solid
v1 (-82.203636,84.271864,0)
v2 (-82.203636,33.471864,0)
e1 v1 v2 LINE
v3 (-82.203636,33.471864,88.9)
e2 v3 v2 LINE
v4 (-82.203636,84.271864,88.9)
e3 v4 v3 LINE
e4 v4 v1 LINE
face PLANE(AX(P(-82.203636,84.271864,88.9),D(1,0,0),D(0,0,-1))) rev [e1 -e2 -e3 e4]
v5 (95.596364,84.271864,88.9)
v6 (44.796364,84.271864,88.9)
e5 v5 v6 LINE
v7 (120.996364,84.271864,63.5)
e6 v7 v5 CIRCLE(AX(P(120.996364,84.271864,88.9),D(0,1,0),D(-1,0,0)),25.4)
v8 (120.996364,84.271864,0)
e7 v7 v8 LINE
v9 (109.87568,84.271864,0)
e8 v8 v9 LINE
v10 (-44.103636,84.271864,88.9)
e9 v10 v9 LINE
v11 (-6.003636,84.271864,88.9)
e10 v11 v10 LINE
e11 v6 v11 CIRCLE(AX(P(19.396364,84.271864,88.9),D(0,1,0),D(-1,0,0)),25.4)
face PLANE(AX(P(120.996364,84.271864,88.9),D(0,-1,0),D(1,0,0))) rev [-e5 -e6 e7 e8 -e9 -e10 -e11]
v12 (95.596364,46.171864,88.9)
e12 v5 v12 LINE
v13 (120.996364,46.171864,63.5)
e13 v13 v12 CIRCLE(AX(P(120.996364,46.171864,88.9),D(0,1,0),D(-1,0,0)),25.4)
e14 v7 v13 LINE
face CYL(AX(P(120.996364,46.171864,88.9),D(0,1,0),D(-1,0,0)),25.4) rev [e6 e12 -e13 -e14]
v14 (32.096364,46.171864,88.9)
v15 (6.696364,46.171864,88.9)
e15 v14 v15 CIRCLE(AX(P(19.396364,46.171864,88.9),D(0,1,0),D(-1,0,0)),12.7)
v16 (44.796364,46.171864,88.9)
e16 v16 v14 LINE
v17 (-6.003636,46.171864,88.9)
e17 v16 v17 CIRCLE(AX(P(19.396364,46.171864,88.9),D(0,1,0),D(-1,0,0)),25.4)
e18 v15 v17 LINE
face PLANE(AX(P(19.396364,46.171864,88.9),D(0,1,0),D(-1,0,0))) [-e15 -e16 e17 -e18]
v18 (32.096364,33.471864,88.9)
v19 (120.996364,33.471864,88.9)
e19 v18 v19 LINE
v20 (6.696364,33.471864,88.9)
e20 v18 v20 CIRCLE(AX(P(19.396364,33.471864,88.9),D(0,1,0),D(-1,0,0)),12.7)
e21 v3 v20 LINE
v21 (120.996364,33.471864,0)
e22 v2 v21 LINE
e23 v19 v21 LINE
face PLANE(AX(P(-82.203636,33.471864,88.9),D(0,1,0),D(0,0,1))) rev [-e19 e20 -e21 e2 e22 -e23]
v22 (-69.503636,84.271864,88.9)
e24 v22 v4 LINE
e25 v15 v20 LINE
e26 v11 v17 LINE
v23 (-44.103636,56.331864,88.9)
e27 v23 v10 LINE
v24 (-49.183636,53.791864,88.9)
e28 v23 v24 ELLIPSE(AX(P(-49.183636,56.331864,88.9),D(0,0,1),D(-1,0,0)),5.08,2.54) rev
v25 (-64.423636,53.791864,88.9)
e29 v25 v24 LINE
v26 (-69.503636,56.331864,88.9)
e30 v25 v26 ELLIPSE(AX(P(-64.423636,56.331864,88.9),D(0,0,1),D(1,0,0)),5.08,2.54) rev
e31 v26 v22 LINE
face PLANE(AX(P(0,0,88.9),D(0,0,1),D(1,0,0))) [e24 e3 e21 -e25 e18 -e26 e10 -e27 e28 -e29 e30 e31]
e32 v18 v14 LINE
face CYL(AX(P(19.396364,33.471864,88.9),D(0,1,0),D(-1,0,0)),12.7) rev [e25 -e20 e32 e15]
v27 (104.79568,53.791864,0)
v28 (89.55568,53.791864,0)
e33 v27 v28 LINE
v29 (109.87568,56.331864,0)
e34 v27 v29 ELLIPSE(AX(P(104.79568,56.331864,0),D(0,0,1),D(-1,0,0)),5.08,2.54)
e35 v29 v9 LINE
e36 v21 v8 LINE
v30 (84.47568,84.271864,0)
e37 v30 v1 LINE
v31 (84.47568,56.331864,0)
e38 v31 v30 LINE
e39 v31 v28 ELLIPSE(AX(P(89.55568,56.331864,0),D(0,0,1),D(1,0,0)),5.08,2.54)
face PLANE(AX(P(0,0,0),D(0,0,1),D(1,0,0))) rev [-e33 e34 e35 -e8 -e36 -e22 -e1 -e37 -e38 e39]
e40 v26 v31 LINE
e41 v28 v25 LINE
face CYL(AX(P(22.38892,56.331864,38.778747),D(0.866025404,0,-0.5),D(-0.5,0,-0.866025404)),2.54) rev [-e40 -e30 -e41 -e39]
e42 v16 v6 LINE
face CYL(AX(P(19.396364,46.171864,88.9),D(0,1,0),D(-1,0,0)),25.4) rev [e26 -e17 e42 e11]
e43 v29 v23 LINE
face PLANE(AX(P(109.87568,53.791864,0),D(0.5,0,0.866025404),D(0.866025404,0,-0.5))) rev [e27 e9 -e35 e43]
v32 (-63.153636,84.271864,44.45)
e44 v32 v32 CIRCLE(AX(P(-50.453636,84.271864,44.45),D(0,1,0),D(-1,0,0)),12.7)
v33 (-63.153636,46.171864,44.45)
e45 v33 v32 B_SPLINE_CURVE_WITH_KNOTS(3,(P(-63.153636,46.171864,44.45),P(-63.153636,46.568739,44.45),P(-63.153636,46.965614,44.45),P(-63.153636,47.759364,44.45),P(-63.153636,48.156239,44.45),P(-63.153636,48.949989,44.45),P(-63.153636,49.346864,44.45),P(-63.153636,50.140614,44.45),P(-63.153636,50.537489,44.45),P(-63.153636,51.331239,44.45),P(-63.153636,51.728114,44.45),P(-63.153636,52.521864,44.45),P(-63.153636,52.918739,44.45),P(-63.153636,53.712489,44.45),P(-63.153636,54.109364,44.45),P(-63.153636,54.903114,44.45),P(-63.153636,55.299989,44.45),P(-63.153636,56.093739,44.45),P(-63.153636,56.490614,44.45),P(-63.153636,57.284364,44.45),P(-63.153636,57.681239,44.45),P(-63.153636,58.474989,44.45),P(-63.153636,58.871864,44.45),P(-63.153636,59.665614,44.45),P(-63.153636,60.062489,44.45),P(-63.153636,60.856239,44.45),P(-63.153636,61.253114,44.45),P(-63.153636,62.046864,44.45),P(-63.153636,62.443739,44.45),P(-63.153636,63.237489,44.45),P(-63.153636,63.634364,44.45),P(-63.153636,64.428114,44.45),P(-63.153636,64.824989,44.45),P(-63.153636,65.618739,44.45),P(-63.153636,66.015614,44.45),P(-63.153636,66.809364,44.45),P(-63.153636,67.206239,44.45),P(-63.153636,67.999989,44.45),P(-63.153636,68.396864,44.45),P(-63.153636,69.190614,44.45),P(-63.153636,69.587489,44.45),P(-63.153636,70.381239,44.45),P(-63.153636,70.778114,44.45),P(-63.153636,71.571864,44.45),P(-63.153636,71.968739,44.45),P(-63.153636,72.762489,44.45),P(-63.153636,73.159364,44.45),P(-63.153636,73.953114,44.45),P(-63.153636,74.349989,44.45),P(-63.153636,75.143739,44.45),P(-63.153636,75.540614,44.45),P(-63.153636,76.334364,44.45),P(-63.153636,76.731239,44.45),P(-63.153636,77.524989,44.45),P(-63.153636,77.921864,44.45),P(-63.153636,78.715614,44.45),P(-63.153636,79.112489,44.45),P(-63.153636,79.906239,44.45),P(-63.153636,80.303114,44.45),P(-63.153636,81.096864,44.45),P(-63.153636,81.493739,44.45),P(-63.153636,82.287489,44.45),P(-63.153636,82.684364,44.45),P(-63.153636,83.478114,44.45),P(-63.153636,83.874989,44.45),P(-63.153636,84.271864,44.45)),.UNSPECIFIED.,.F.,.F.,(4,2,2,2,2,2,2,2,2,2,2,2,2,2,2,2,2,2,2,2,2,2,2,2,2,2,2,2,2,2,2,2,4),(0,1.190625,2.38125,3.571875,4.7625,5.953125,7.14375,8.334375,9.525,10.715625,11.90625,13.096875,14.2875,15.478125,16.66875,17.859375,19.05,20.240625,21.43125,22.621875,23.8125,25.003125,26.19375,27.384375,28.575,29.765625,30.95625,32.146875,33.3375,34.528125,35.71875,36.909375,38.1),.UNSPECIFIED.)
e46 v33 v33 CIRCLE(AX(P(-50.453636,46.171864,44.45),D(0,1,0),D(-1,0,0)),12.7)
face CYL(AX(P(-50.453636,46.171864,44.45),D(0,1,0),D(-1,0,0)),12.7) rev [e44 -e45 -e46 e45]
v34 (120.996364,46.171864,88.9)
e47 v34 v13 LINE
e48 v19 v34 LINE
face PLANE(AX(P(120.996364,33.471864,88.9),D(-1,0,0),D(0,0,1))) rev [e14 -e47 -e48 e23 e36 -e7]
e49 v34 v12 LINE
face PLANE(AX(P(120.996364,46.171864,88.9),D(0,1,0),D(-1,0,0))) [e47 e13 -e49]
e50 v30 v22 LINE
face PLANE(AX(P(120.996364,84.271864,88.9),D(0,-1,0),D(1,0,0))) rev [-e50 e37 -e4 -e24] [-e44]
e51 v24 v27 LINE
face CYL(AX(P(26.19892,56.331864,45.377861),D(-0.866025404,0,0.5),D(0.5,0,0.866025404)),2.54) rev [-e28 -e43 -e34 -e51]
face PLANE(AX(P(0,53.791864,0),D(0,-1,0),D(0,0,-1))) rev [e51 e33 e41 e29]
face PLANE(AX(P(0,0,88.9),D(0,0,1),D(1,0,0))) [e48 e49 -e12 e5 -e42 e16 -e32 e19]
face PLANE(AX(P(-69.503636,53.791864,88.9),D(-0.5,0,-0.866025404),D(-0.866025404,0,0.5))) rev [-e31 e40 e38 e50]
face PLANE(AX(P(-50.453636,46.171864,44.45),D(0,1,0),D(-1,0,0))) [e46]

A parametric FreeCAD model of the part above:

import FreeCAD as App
import Part
import Sketcher
Q = App.Units.Quantity


def edges_at(feature, points):
    """Names of the edges that pass closest to the given points."""
    edges = feature.Shape.Edges
    near = lambda p: min(range(len(edges)), key=lambda i: edges[i].distToShape(Part.Vertex(*p))[0])
    return sorted({f"Edge{near(p) + 1}" for p in points})


def add_polygon(sketch, points):
    """Adds a closed chain of lines whose ends are joined by coincident constraints."""
    first, n = sketch.GeometryCount, len(points)
    for a, b in zip(points, points[1:] + points[:1]):
        sketch.addGeometry(Part.LineSegment(App.Vector(*a, 0), App.Vector(*b, 0)), False)
    for i in range(n):
        sketch.addConstraint(Sketcher.Constraint("Coincident", first + i, 2, first + (i + 1) % n, 1))

doc = App.newDocument("Part")
params = doc.addObject("Spreadsheet::Sheet", "Params")
for row, (alias, value) in enumerate([
    ("sketch1_width", "8 in"),
    ("sketch1_height", "2 in"),
    ("pad1_length", "3.5 in"),
    ("sketch2_diameter", "1 in"),
    ("sketch2_diameter2", "2 in"),
    ("pocket1_length", "1.5 in"),
    ("sketch3_diameter", "1 in"),
    ("sketch4_width", "1 in"),
    ("sketch4_length", "7 in"),
    ("pocket3_length", "1.2 in"),
    ("fillet_radius", "0.1 in"),
], start=1):
    params.set(f"A{row}", alias)
    params.set(f"B{row}", "=" + value)
    params.setAlias(f"B{row}", alias)

body = doc.addObject("PartDesign::Body", "Body")

sketch1 = doc.addObject("Sketcher::SketchObject", "Sketch")
body.addObject(sketch1)
sketch1.AttachmentSupport = (doc.XY_Plane, [""])
sketch1.MapMode = "FlatFace"
add_polygon(sketch1, [(-82, 84), (-82, 33), (121, 33), (121, 84)])
sketch1.addConstraint([
    Sketcher.Constraint("Vertical", 0),
    Sketcher.Constraint("Horizontal", 1),
    Sketcher.Constraint("Vertical", 2),
    Sketcher.Constraint("Horizontal", 3),
    Sketcher.Constraint("DistanceX", 1, 1, 1, 2, Q("8 in")),
    Sketcher.Constraint("DistanceY", 0, 2, 0, 1, Q("2 in")),
    Sketcher.Constraint("DistanceX", 0, 2, -1, 1, 82.203636),
    Sketcher.Constraint("DistanceY", -1, 1, 0, 2, 33.471864),
])
sketch1.setExpression("Constraints[8]", "Params.sketch1_width")
sketch1.setExpression("Constraints[9]", "Params.sketch1_height")
pad1 = doc.addObject("PartDesign::Pad", "Pad")
body.addObject(pad1)
pad1.Profile = sketch1
pad1.setExpression("Length", "Params.pad1_length")

sketch2 = doc.addObject("Sketcher::SketchObject", "Sketch001")
body.addObject(sketch2)
sketch2.AttachmentSupport = (doc.XZ_Plane, [""])
sketch2.MapMode = "FlatFace"
sketch2.AttachmentOffset = App.Placement(App.Vector(0, 0, -84.271864), App.Rotation())
sketch2.addGeometry([
    Part.Circle(App.Vector(-50, 44, 0), App.Vector(0, 0, 1), 13),
    Part.Circle(App.Vector(19, 89, 0), App.Vector(0, 0, 1), 25),
    Part.Circle(App.Vector(121, 89, 0), App.Vector(0, 0, 1), 25),
], False)
sketch2.addConstraint([
    Sketcher.Constraint("Equal", 1, 2),
    Sketcher.Constraint("Horizontal", 1, 3, 2, 3),
    Sketcher.Constraint("Diameter", 0, Q("1 in")),
    Sketcher.Constraint("Diameter", 1, Q("2 in")),
    Sketcher.Constraint("DistanceX", 1, 3, 2, 3, Q("4 in")),
    Sketcher.Constraint("DistanceY", -1, 1, 1, 3, Q("3.5 in")),
    Sketcher.Constraint("DistanceY", -1, 1, 0, 3, Q("1.75 in")),
    Sketcher.Constraint("DistanceX", 0, 3, 1, 3, Q("2.75 in")),
    Sketcher.Constraint("DistanceX", 0, 3, -1, 1, 50.453636),
])
sketch2.setExpression("Constraints[2]", "Params.sketch2_diameter")
sketch2.setExpression("Constraints[3]", "Params.sketch2_diameter2")
pocket1 = doc.addObject("PartDesign::Pocket", "Pocket")
body.addObject(pocket1)
pocket1.Profile = sketch2
pocket1.setExpression("Length", "Params.pocket1_length")
pocket1.Reversed = True

sketch3 = doc.addObject("Sketcher::SketchObject", "Sketch002")
body.addObject(sketch3)
sketch3.AttachmentSupport = (doc.XZ_Plane, [""])
sketch3.MapMode = "FlatFace"
sketch3.AttachmentOffset = App.Placement(App.Vector(0, 0, -46.171864), App.Rotation())
sketch3.addGeometry(Part.Circle(App.Vector(19, 89, 0), App.Vector(0, 0, 1), 13), False)
sketch3.addConstraint([
    Sketcher.Constraint("Diameter", 0, Q("1 in")),
    Sketcher.Constraint("DistanceY", -1, 1, 0, 3, Q("3.5 in")),
    Sketcher.Constraint("DistanceX", -1, 1, 0, 3, 19.396364),
])
sketch3.setExpression("Constraints[0]", "Params.sketch3_diameter")
pocket2 = doc.addObject("PartDesign::Pocket", "Pocket001")
body.addObject(pocket2)
pocket2.Profile = sketch3
pocket2.Type = "ThroughAll"
pocket2.Reversed = True

sketch4 = doc.addObject("Sketcher::SketchObject", "Sketch003")
body.addObject(sketch4)
sketch4.AttachmentSupport = (doc.XZ_Plane, [""])
sketch4.MapMode = "FlatFace"
sketch4.AttachmentOffset = App.Placement(App.Vector(0, 0, -84.271864), App.Rotation())
add_polygon(sketch4, [(84, 0), (-70, 89), (-44, 89), (110, 0)])
sketch4.addConstraint([
    Sketcher.Constraint("Horizontal", 1),
    Sketcher.Constraint("Horizontal", 3),
    Sketcher.Constraint("PointOnObject", 2, 2, -1),
    Sketcher.Constraint("Parallel", 0, 2),
    Sketcher.Constraint("DistanceX", 1, 1, 1, 2, Q("1 in")),
    Sketcher.Constraint("Distance", 0, Q("7 in")),
    Sketcher.Constraint("Angle", 0, Q("150 deg")),
    Sketcher.Constraint("DistanceX", -1, 1, 2, 2, 109.87568),
])
sketch4.setExpression("Constraints[8]", "Params.sketch4_width")
sketch4.setExpression("Constraints[9]", "Params.sketch4_length")
pocket3 = doc.addObject("PartDesign::Pocket", "Pocket002")
body.addObject(pocket3)
pocket3.Profile = sketch4
pocket3.setExpression("Length", "Params.pocket3_length")
pocket3.Reversed = True
doc.recompute()

fillet = doc.addObject("PartDesign::Fillet", "Fillet")
body.addObject(fillet)
fillet.Base = (pocket3, edges_at(pocket3, [(7.486, 53.792, 44.45), (32.886, 53.792, 44.45)]))
fillet.setExpression("Radius", "Params.fillet_radius")

doc.recompute()
